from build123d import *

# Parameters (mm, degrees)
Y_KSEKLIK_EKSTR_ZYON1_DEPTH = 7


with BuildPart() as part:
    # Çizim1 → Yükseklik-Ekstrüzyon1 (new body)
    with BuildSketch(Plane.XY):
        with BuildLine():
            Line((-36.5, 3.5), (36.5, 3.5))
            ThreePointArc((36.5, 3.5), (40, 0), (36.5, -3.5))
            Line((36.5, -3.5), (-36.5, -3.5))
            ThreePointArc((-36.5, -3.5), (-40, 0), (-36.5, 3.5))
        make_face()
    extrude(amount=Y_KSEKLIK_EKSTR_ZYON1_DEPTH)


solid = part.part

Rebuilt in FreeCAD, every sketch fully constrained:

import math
import FreeCAD as App
import Part
import Sketcher
Q = App.Units.Quantity

doc = App.newDocument("Part")
body = doc.addObject("PartDesign::Body", "Body")

# Sketch on XY plane
sketch1 = body.newObject("Sketcher::SketchObject", "Sketch")
sketch1.AttachmentSupport = (doc.getObject("XY_Plane"), [""])
sketch1.MapMode = "FlatFace"
sketch1.addGeometry(Part.LineSegment(App.Vector(36.5, 3.5, 0), App.Vector(-36.5, 3.5, 0)), False)
sketch1.addGeometry(Part.ArcOfCircle(Part.Circle(App.Vector(-36.5, 0, 0), App.Vector(0, 0, 1), 3.5), math.radians(90), math.radians(270)), False)
sketch1.addGeometry(Part.LineSegment(App.Vector(-36.5, -3.5, 0), App.Vector(36.5, -3.5, 0)), False)
sketch1.addGeometry(Part.ArcOfCircle(Part.Circle(App.Vector(36.5, 0, 0), App.Vector(0, 0, 1), 3.5), math.radians(-90), math.radians(90)), False)
sketch1.addConstraint(Sketcher.Constraint("Tangent", 0, 2, 1, 1))
sketch1.addConstraint(Sketcher.Constraint("Tangent", 1, 2, 2, 1))
sketch1.addConstraint(Sketcher.Constraint("Tangent", 2, 2, 3, 1))
sketch1.addConstraint(Sketcher.Constraint("Tangent", 3, 2, 0, 1))
sketch1.addConstraint(Sketcher.Constraint("Horizontal", 0))
sketch1.addConstraint(Sketcher.Constraint("Horizontal", 2))
sketch1.addConstraint(Sketcher.Constraint("Symmetric", 1, 3, 3, 3, -1, 1))
sketch1.addConstraint(Sketcher.Constraint("Radius", 1, Q("3.5 mm")))
sketch1.addConstraint(Sketcher.Constraint("DistanceX", 0, 2, 0, 1, Q("73 mm")))
pad1 = body.newObject("PartDesign::Pad", "Pad")
pad1.Profile = sketch1
pad1.Length = 7

doc.recompute()
